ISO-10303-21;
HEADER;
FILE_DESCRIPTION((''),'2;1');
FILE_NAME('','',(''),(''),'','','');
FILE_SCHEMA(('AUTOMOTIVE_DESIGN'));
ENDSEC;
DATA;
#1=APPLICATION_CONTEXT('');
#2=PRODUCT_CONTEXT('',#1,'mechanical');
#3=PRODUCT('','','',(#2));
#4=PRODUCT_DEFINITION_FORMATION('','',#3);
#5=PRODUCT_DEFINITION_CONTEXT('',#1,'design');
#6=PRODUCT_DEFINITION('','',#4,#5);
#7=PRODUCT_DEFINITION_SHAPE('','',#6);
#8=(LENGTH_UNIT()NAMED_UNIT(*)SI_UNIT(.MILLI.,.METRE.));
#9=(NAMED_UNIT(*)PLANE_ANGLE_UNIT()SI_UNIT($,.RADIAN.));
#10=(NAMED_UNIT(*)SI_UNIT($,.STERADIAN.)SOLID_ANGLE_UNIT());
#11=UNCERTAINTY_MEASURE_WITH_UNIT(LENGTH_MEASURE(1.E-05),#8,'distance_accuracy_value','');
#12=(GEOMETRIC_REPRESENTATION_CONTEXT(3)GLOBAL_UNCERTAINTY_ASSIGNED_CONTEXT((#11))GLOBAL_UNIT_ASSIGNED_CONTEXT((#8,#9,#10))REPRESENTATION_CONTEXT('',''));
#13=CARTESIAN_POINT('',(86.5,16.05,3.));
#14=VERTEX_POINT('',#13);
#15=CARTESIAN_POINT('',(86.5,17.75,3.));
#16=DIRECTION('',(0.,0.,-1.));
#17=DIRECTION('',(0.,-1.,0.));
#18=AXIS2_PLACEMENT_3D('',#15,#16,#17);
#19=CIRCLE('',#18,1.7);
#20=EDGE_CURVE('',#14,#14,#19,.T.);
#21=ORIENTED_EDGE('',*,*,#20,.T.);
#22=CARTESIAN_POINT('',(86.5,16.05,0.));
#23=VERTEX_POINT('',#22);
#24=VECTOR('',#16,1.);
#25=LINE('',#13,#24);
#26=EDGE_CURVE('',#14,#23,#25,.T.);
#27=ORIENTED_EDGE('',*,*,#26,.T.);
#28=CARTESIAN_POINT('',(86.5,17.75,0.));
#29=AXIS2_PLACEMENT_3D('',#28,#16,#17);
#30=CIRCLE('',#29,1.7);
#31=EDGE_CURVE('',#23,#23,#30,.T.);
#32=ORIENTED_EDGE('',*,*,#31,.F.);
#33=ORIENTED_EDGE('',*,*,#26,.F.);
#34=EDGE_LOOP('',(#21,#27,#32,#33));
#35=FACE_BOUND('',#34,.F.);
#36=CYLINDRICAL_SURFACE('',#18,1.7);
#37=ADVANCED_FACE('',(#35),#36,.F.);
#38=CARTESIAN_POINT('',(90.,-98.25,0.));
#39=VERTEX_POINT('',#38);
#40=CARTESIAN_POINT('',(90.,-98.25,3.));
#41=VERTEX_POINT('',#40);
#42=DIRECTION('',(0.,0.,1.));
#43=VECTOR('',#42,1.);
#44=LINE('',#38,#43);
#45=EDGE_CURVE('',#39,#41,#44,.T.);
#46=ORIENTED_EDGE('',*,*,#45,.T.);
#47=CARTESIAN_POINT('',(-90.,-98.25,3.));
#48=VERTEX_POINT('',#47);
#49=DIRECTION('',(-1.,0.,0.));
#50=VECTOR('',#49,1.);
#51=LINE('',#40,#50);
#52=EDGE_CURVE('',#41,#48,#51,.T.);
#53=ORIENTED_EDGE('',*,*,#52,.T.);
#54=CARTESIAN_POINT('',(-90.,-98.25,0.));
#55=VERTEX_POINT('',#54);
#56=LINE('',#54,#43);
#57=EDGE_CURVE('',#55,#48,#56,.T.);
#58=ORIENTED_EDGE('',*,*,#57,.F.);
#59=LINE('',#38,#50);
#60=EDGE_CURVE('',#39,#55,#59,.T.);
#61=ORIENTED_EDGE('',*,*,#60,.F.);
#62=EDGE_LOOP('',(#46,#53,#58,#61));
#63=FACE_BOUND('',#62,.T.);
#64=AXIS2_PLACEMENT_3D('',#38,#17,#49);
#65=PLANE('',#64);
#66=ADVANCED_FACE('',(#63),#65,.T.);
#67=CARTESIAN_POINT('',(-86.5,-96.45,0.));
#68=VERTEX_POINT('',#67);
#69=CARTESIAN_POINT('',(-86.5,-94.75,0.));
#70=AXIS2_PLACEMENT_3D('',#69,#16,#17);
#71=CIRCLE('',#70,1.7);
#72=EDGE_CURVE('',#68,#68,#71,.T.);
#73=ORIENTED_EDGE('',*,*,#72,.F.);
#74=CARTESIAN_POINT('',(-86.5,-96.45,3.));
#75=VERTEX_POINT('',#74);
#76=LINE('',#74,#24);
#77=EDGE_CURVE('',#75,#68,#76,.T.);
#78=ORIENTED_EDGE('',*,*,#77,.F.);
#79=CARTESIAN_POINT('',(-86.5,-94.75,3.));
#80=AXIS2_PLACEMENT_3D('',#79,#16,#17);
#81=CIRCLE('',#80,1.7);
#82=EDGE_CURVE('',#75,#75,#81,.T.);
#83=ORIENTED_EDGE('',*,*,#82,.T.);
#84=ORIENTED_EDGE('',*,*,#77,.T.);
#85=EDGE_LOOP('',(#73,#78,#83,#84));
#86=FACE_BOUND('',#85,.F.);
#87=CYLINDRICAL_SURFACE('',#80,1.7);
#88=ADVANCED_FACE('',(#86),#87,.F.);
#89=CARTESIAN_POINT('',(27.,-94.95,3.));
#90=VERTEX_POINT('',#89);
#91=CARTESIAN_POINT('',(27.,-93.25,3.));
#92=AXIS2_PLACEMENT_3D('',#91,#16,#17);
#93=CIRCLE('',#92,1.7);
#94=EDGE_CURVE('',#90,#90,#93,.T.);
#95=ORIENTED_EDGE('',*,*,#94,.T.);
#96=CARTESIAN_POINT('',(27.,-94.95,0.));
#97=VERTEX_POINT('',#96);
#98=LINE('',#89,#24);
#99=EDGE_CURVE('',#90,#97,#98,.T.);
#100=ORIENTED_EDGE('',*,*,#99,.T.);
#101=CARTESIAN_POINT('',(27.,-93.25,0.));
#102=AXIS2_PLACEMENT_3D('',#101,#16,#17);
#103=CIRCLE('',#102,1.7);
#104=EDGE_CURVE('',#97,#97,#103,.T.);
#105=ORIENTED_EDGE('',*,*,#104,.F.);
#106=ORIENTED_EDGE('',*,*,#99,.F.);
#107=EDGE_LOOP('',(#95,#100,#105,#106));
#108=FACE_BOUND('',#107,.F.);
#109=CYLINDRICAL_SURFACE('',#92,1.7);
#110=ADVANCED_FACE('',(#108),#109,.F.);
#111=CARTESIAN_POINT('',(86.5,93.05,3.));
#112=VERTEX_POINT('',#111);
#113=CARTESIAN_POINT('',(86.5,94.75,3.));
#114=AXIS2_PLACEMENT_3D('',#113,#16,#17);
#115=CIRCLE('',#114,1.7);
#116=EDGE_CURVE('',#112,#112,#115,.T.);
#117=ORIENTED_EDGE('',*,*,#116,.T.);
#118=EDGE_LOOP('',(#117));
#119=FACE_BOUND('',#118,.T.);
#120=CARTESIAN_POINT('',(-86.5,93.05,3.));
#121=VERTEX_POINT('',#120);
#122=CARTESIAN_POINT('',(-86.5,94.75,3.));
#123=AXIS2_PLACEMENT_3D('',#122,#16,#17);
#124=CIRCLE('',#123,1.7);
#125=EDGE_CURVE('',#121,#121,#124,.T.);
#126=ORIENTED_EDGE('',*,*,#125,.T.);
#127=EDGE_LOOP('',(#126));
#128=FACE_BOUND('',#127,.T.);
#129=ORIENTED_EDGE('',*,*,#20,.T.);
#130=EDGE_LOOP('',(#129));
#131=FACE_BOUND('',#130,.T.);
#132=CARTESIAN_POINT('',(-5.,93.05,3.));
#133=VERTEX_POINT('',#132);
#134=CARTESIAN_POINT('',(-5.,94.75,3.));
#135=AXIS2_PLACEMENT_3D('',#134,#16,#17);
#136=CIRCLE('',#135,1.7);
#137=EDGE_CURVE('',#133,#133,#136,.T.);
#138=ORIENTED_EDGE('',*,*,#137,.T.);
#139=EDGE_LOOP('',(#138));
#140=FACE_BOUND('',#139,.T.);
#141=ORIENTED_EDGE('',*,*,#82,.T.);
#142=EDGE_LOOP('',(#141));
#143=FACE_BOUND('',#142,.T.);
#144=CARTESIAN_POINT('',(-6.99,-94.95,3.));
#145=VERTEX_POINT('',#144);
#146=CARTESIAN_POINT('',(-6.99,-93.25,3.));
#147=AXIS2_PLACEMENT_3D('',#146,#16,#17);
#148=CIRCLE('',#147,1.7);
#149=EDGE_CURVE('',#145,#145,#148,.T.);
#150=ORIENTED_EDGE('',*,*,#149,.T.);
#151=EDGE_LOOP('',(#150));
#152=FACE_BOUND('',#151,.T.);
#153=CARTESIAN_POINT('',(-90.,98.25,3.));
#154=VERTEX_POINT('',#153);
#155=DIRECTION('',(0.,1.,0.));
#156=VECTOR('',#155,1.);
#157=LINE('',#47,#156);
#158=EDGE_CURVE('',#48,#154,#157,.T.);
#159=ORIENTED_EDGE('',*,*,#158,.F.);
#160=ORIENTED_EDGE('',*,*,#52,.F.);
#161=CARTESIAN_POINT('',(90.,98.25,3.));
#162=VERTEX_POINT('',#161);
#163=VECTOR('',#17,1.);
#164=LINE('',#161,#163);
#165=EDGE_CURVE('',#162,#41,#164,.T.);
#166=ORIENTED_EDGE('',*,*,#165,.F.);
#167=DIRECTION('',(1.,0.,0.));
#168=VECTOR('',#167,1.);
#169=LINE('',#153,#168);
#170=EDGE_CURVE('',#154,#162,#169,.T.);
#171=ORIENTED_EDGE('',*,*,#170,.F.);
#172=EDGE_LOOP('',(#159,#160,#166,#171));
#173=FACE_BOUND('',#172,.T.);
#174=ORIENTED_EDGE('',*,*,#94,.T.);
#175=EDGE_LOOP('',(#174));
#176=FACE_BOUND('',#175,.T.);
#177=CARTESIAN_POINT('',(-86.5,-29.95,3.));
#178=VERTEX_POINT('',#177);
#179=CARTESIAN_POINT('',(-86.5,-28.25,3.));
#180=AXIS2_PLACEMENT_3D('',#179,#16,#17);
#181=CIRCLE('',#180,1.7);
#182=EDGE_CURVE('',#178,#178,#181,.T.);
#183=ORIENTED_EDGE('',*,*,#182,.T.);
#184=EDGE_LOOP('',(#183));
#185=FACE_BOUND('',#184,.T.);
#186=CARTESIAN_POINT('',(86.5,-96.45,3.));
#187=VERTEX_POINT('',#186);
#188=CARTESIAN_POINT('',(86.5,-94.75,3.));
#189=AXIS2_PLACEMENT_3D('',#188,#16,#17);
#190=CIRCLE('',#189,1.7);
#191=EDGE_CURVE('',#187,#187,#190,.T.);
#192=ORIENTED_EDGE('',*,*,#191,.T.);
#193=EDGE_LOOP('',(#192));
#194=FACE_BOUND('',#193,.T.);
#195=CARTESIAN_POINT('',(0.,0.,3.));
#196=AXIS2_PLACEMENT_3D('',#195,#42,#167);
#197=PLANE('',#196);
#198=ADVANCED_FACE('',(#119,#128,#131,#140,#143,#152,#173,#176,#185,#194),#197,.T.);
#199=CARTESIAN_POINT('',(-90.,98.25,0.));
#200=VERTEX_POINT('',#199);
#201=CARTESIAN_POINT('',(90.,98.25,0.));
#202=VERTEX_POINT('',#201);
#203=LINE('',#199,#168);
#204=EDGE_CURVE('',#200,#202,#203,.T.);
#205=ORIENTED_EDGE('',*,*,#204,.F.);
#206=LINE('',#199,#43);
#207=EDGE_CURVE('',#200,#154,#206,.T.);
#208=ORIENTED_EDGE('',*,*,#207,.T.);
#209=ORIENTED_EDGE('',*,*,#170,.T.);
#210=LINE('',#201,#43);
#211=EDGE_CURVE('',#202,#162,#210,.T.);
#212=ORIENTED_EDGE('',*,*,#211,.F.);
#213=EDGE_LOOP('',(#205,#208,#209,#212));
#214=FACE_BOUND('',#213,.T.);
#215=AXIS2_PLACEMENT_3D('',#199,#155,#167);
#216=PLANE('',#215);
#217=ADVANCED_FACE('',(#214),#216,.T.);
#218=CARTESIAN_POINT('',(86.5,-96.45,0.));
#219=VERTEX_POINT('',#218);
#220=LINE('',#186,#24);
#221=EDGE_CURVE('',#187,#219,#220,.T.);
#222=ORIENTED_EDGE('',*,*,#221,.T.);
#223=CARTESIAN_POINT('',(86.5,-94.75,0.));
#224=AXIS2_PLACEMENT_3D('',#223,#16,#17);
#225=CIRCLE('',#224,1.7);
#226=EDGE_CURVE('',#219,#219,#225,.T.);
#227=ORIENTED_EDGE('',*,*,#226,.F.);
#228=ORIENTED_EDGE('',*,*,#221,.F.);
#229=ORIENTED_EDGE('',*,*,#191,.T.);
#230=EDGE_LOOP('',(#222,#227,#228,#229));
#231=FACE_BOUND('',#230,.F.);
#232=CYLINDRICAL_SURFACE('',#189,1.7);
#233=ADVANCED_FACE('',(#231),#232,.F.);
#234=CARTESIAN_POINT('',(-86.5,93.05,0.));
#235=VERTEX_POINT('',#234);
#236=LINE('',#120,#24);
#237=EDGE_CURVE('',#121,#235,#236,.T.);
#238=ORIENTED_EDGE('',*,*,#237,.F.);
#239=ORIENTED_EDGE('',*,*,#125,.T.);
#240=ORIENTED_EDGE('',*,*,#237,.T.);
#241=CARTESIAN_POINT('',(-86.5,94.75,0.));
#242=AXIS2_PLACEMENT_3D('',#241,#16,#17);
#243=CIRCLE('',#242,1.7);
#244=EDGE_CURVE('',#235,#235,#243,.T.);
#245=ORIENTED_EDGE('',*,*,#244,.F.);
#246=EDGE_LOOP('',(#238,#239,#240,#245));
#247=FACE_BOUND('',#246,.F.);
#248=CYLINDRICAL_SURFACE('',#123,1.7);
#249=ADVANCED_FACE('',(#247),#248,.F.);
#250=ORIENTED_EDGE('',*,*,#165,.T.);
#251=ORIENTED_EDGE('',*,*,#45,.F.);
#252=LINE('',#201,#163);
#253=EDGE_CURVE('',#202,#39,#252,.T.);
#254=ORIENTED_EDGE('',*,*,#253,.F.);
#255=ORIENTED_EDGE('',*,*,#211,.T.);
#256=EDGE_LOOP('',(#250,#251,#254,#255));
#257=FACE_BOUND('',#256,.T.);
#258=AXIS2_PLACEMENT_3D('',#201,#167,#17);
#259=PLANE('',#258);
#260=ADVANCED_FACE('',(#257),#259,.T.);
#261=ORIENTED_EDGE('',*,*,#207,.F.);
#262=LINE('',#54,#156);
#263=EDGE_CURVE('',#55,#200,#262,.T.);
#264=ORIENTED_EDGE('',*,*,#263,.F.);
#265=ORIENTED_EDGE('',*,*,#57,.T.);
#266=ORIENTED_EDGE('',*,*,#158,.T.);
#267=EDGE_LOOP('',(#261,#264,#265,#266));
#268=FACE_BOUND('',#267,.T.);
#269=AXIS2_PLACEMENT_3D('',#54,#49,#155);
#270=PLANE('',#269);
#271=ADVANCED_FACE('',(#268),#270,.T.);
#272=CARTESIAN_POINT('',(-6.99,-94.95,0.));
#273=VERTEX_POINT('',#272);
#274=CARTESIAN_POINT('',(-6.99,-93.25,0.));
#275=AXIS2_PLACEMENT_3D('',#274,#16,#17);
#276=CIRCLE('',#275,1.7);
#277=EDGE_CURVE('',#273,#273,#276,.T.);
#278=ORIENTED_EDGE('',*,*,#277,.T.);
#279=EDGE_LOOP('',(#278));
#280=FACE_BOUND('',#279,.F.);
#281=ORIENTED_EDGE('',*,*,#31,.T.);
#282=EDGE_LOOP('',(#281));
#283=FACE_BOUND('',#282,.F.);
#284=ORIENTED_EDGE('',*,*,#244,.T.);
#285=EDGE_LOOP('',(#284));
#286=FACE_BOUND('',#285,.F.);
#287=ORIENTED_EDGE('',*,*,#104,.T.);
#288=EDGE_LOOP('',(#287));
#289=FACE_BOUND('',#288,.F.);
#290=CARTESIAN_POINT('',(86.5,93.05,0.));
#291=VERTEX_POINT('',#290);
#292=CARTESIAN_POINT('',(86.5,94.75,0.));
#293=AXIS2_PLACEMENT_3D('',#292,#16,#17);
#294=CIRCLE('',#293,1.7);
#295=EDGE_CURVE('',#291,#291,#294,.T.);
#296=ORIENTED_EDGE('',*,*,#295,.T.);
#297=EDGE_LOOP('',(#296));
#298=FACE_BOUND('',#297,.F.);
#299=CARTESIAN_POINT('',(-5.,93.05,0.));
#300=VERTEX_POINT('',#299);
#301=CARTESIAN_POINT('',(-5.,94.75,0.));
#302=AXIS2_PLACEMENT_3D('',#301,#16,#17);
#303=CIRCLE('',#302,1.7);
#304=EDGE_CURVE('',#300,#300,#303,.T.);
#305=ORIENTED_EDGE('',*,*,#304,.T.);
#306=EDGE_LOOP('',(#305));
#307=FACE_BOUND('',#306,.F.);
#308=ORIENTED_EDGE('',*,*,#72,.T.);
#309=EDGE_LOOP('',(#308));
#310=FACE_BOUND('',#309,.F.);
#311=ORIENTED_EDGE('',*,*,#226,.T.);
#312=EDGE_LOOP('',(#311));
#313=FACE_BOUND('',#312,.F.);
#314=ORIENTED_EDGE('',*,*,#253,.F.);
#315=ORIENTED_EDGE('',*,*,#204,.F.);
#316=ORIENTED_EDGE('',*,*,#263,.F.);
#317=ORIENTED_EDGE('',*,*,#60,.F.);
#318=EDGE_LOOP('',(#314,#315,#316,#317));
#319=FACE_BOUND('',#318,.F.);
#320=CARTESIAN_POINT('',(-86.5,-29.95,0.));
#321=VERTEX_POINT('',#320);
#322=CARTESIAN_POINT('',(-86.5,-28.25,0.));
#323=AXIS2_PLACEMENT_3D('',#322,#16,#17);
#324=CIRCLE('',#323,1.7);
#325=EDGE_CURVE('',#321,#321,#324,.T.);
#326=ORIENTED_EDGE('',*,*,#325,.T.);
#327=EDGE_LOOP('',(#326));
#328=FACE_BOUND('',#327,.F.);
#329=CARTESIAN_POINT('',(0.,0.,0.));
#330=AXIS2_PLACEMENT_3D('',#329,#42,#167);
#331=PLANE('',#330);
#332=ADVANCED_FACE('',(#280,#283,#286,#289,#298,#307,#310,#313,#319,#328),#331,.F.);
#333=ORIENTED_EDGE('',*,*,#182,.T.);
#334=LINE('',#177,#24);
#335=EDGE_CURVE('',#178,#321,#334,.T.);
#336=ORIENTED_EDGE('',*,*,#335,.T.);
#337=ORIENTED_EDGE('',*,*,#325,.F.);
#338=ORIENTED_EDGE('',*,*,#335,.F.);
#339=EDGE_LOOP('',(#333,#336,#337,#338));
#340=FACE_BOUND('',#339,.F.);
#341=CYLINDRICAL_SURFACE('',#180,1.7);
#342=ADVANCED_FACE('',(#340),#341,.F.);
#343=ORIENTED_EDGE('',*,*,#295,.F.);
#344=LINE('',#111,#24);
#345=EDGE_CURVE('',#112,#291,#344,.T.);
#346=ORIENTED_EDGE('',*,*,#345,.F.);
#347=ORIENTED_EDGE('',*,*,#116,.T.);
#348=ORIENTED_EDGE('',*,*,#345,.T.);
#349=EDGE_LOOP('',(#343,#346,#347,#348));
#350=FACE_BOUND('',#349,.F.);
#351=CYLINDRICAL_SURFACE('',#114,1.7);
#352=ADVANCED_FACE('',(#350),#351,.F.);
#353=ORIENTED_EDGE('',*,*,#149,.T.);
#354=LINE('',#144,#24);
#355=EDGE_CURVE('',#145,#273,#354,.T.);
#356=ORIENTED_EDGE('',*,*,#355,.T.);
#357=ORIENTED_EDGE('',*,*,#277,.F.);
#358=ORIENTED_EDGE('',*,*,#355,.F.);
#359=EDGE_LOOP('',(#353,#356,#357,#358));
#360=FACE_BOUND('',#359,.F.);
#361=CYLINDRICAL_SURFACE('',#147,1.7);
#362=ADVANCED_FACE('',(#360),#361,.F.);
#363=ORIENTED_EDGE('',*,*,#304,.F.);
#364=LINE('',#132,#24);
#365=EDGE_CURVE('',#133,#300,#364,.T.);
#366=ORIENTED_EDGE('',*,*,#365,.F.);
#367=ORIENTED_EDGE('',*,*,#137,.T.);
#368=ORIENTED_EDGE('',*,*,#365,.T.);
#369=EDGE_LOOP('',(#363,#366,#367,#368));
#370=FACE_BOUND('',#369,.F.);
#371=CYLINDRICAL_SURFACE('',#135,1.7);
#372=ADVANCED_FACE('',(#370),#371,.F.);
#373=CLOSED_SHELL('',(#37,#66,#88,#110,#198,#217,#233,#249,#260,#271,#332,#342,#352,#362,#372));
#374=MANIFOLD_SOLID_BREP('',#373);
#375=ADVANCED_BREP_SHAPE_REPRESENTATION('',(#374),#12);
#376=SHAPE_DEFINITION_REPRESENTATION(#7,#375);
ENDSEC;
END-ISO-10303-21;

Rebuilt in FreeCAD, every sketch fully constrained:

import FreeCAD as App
import Part
import Sketcher

V = App.Vector


def add_polygon(sketch, points):
    """Adds a closed chain of lines whose ends are joined by coincident constraints."""
    first, n = sketch.GeometryCount, len(points)
    for a, b in zip(points, points[1:] + points[:1]):
        sketch.addGeometry(Part.LineSegment(App.Vector(*a, 0), App.Vector(*b, 0)), False)
    for i in range(n):
        sketch.addConstraint(Sketcher.Constraint("Coincident", first + i, 2, first + (i + 1) % n, 1))

doc = App.newDocument("Part")
body = doc.addObject("PartDesign::Body", "Body")

sketch1 = body.newObject("Sketcher::SketchObject", "Sketch")
sketch1.AttachmentSupport = (doc.getObject("XY_Plane"), [""])
sketch1.MapMode = "FlatFace"
add_polygon(sketch1, [(90, 98), (-90, 98), (-90, -98), (90, -98)])
sketch1.addConstraint(Sketcher.Constraint("Horizontal", 0))
sketch1.addConstraint(Sketcher.Constraint("Vertical", 1))
sketch1.addConstraint(Sketcher.Constraint("Horizontal", 2))
sketch1.addConstraint(Sketcher.Constraint("Vertical", 3))
sketch1.addConstraint(Sketcher.Constraint("Symmetric", 0, 2, 2, 2, -1, 1))
sketch1.addConstraint(Sketcher.Constraint("DistanceX", 0, 2, 0, 1, 180.0))
sketch1.addConstraint(Sketcher.Constraint("DistanceY", 1, 2, 1, 1, 196.5))
pad1 = body.newObject("PartDesign::Pad", "Pad")
pad1.Profile = sketch1
pad1.Length = 3

sketch2 = body.newObject("Sketcher::SketchObject", "Sketch001")
sketch2.AttachmentSupport = (doc.getObject("XY_Plane"), [""])
sketch2.MapMode = "FlatFace"
sketch2.AttachmentOffset = App.Placement(V(0, 0, 3), App.Rotation())
sketch2.addGeometry(Part.Circle(V(-86.5, 94.8, 0), V(0, 0, 1), 1.7), False)
sketch2.addGeometry(Part.Circle(V(86.5, 94.8, 0), V(0, 0, 1), 1.7), False)
sketch2.addGeometry(Part.Circle(V(-86.5, -94.8, 0), V(0, 0, 1), 1.7), False)
sketch2.addGeometry(Part.Circle(V(86.5, -94.8, 0), V(0, 0, 1), 1.7), False)
sketch2.addGeometry(Part.Circle(V(-86.5, -28.2, 0), V(0, 0, 1), 1.7), False)
sketch2.addGeometry(Part.Circle(V(86.5, 17.8, 0), V(0, 0, 1), 1.7), False)
sketch2.addGeometry(Part.Circle(V(-5, 94.8, 0), V(0, 0, 1), 1.7), False)
sketch2.addGeometry(Part.Circle(V(-7, -93.2, 0), V(0, 0, 1), 1.7), False)
sketch2.addGeometry(Part.Circle(V(27, -93.2, 0), V(0, 0, 1), 1.7), False)
sketch2.addConstraint(Sketcher.Constraint("Equal", 0, 1))
sketch2.addConstraint(Sketcher.Constraint("Equal", 1, 2))
sketch2.addConstraint(Sketcher.Constraint("Equal", 2, 3))
sketch2.addConstraint(Sketcher.Constraint("Equal", 3, 4))
sketch2.addConstraint(Sketcher.Constraint("Equal", 4, 5))
sketch2.addConstraint(Sketcher.Constraint("Equal", 5, 6))
sketch2.addConstraint(Sketcher.Constraint("Equal", 6, 7))
sketch2.addConstraint(Sketcher.Constraint("Equal", 7, 8))
sketch2.addConstraint(Sketcher.Constraint("Symmetric", 1, 3, 2, 3, -1, 1))
sketch2.addConstraint(Sketcher.Constraint("Symmetric", 0, 3, 3, 3, -1, 1))
sketch2.addConstraint(Sketcher.Constraint("Symmetric", 0, 3, 1, 3, -2))
sketch2.addConstraint(Sketcher.Constraint("Horizontal", 1, 3, 6, 3))
sketch2.addConstraint(Sketcher.Constraint("Horizontal", 7, 3, 8, 3))
sketch2.addConstraint(Sketcher.Constraint("Vertical", 2, 3, 4, 3))
sketch2.addConstraint(Sketcher.Constraint("Vertical", 3, 3, 5, 3))
sketch2.addConstraint(Sketcher.Constraint("Diameter", 0, 3.4))
sketch2.addConstraint(Sketcher.Constraint("DistanceX", 6, 3, -1, 1, 5.0))
sketch2.addConstraint(Sketcher.Constraint("DistanceX", -1, 1, 8, 3, 27.0))
sketch2.addConstraint(Sketcher.Constraint("DistanceX", 0, 3, 1, 3, 173.0))
sketch2.addConstraint(Sketcher.Constraint("DistanceY", 4, 3, 0, 3, 123.0))
sketch2.addConstraint(Sketcher.Constraint("DistanceY", 5, 3, 1, 3, 77.0))
sketch2.addConstraint(Sketcher.Constraint("DistanceY", 7, 3, 4, 3, 65.0))
sketch2.addConstraint(Sketcher.Constraint("DistanceY", 2, 3, 0, 3, 189.5))
sketch2.addConstraint(Sketcher.Constraint("DistanceX", 7, 3, -1, 1, 6.99))
doc.recompute()
hole = body.newObject("PartDesign::Hole", "Hole")
hole.Profile = sketch2
hole.ThreadType = "None"
hole.Diameter = 3.4
hole.DepthType = "ThroughAll"

doc.recompute()
